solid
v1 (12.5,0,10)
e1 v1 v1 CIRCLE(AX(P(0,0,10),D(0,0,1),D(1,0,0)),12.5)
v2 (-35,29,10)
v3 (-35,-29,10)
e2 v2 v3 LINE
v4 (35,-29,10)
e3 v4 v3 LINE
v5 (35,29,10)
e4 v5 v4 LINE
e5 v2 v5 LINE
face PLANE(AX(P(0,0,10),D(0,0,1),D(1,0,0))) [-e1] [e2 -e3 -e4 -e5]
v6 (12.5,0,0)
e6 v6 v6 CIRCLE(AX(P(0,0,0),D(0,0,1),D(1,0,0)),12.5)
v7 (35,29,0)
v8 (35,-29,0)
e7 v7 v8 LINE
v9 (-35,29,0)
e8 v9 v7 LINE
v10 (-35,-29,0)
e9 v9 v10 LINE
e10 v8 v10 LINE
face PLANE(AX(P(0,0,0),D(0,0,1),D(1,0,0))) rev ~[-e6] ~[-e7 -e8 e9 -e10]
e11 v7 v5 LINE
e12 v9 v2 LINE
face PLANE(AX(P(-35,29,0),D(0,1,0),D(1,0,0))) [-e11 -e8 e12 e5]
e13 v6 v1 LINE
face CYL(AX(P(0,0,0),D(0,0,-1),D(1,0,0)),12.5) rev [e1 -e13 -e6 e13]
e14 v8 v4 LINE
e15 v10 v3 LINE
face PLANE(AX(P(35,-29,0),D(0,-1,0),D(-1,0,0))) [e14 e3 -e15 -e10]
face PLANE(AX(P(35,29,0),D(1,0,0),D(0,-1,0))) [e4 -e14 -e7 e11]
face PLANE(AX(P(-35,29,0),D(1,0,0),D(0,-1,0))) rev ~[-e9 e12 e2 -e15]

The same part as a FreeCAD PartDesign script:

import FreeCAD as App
import Part
import Sketcher

V = App.Vector
Q = App.Units.Quantity


def add_polygon(sketch, points):
    """Adds a closed chain of lines whose ends are joined by coincident constraints."""
    first, n = sketch.GeometryCount, len(points)
    for a, b in zip(points, points[1:] + points[:1]):
        sketch.addGeometry(Part.LineSegment(App.Vector(*a, 0), App.Vector(*b, 0)), False)
    for i in range(n):
        sketch.addConstraint(Sketcher.Constraint("Coincident", first + i, 2, first + (i + 1) % n, 1))

doc = App.newDocument("Part")
body = doc.addObject("PartDesign::Body", "Body")

# Sketch on XY plane
sketch1 = doc.addObject("Sketcher::SketchObject", "Sketch")
body.addObject(sketch1)
sketch1.AttachmentSupport = (doc.XY_Plane, [""])
sketch1.MapMode = "FlatFace"
add_polygon(sketch1, [(35, 29), (-35, 29), (-35, -29), (35, -29)])  # lines 0-3
sketch1.addGeometry(Part.Circle(V(0, 0, 0), V(0, 0, 1), 12), False)  # 4
sketch1.addConstraint(Sketcher.Constraint("Horizontal", 0))
sketch1.addConstraint(Sketcher.Constraint("Vertical", 1))
sketch1.addConstraint(Sketcher.Constraint("Horizontal", 2))
sketch1.addConstraint(Sketcher.Constraint("Vertical", 3))
sketch1.addConstraint(Sketcher.Constraint("Coincident", 4, 3, -1, 1))
sketch1.addConstraint(Sketcher.Constraint("Symmetric", 0, 2, 2, 2, -1, 1))
sketch1.addConstraint(Sketcher.Constraint("Diameter", 4, Q("25 mm")))
sketch1.addConstraint(Sketcher.Constraint("DistanceX", 0, 2, 0, 1, Q("70 mm")))
sketch1.addConstraint(Sketcher.Constraint("DistanceY", 1, 2, 1, 1, Q("58 mm")))
pad1 = doc.addObject("PartDesign::Pad", "Pad")
body.addObject(pad1)
pad1.Profile = sketch1
pad1.Length = 10

doc.recompute()
